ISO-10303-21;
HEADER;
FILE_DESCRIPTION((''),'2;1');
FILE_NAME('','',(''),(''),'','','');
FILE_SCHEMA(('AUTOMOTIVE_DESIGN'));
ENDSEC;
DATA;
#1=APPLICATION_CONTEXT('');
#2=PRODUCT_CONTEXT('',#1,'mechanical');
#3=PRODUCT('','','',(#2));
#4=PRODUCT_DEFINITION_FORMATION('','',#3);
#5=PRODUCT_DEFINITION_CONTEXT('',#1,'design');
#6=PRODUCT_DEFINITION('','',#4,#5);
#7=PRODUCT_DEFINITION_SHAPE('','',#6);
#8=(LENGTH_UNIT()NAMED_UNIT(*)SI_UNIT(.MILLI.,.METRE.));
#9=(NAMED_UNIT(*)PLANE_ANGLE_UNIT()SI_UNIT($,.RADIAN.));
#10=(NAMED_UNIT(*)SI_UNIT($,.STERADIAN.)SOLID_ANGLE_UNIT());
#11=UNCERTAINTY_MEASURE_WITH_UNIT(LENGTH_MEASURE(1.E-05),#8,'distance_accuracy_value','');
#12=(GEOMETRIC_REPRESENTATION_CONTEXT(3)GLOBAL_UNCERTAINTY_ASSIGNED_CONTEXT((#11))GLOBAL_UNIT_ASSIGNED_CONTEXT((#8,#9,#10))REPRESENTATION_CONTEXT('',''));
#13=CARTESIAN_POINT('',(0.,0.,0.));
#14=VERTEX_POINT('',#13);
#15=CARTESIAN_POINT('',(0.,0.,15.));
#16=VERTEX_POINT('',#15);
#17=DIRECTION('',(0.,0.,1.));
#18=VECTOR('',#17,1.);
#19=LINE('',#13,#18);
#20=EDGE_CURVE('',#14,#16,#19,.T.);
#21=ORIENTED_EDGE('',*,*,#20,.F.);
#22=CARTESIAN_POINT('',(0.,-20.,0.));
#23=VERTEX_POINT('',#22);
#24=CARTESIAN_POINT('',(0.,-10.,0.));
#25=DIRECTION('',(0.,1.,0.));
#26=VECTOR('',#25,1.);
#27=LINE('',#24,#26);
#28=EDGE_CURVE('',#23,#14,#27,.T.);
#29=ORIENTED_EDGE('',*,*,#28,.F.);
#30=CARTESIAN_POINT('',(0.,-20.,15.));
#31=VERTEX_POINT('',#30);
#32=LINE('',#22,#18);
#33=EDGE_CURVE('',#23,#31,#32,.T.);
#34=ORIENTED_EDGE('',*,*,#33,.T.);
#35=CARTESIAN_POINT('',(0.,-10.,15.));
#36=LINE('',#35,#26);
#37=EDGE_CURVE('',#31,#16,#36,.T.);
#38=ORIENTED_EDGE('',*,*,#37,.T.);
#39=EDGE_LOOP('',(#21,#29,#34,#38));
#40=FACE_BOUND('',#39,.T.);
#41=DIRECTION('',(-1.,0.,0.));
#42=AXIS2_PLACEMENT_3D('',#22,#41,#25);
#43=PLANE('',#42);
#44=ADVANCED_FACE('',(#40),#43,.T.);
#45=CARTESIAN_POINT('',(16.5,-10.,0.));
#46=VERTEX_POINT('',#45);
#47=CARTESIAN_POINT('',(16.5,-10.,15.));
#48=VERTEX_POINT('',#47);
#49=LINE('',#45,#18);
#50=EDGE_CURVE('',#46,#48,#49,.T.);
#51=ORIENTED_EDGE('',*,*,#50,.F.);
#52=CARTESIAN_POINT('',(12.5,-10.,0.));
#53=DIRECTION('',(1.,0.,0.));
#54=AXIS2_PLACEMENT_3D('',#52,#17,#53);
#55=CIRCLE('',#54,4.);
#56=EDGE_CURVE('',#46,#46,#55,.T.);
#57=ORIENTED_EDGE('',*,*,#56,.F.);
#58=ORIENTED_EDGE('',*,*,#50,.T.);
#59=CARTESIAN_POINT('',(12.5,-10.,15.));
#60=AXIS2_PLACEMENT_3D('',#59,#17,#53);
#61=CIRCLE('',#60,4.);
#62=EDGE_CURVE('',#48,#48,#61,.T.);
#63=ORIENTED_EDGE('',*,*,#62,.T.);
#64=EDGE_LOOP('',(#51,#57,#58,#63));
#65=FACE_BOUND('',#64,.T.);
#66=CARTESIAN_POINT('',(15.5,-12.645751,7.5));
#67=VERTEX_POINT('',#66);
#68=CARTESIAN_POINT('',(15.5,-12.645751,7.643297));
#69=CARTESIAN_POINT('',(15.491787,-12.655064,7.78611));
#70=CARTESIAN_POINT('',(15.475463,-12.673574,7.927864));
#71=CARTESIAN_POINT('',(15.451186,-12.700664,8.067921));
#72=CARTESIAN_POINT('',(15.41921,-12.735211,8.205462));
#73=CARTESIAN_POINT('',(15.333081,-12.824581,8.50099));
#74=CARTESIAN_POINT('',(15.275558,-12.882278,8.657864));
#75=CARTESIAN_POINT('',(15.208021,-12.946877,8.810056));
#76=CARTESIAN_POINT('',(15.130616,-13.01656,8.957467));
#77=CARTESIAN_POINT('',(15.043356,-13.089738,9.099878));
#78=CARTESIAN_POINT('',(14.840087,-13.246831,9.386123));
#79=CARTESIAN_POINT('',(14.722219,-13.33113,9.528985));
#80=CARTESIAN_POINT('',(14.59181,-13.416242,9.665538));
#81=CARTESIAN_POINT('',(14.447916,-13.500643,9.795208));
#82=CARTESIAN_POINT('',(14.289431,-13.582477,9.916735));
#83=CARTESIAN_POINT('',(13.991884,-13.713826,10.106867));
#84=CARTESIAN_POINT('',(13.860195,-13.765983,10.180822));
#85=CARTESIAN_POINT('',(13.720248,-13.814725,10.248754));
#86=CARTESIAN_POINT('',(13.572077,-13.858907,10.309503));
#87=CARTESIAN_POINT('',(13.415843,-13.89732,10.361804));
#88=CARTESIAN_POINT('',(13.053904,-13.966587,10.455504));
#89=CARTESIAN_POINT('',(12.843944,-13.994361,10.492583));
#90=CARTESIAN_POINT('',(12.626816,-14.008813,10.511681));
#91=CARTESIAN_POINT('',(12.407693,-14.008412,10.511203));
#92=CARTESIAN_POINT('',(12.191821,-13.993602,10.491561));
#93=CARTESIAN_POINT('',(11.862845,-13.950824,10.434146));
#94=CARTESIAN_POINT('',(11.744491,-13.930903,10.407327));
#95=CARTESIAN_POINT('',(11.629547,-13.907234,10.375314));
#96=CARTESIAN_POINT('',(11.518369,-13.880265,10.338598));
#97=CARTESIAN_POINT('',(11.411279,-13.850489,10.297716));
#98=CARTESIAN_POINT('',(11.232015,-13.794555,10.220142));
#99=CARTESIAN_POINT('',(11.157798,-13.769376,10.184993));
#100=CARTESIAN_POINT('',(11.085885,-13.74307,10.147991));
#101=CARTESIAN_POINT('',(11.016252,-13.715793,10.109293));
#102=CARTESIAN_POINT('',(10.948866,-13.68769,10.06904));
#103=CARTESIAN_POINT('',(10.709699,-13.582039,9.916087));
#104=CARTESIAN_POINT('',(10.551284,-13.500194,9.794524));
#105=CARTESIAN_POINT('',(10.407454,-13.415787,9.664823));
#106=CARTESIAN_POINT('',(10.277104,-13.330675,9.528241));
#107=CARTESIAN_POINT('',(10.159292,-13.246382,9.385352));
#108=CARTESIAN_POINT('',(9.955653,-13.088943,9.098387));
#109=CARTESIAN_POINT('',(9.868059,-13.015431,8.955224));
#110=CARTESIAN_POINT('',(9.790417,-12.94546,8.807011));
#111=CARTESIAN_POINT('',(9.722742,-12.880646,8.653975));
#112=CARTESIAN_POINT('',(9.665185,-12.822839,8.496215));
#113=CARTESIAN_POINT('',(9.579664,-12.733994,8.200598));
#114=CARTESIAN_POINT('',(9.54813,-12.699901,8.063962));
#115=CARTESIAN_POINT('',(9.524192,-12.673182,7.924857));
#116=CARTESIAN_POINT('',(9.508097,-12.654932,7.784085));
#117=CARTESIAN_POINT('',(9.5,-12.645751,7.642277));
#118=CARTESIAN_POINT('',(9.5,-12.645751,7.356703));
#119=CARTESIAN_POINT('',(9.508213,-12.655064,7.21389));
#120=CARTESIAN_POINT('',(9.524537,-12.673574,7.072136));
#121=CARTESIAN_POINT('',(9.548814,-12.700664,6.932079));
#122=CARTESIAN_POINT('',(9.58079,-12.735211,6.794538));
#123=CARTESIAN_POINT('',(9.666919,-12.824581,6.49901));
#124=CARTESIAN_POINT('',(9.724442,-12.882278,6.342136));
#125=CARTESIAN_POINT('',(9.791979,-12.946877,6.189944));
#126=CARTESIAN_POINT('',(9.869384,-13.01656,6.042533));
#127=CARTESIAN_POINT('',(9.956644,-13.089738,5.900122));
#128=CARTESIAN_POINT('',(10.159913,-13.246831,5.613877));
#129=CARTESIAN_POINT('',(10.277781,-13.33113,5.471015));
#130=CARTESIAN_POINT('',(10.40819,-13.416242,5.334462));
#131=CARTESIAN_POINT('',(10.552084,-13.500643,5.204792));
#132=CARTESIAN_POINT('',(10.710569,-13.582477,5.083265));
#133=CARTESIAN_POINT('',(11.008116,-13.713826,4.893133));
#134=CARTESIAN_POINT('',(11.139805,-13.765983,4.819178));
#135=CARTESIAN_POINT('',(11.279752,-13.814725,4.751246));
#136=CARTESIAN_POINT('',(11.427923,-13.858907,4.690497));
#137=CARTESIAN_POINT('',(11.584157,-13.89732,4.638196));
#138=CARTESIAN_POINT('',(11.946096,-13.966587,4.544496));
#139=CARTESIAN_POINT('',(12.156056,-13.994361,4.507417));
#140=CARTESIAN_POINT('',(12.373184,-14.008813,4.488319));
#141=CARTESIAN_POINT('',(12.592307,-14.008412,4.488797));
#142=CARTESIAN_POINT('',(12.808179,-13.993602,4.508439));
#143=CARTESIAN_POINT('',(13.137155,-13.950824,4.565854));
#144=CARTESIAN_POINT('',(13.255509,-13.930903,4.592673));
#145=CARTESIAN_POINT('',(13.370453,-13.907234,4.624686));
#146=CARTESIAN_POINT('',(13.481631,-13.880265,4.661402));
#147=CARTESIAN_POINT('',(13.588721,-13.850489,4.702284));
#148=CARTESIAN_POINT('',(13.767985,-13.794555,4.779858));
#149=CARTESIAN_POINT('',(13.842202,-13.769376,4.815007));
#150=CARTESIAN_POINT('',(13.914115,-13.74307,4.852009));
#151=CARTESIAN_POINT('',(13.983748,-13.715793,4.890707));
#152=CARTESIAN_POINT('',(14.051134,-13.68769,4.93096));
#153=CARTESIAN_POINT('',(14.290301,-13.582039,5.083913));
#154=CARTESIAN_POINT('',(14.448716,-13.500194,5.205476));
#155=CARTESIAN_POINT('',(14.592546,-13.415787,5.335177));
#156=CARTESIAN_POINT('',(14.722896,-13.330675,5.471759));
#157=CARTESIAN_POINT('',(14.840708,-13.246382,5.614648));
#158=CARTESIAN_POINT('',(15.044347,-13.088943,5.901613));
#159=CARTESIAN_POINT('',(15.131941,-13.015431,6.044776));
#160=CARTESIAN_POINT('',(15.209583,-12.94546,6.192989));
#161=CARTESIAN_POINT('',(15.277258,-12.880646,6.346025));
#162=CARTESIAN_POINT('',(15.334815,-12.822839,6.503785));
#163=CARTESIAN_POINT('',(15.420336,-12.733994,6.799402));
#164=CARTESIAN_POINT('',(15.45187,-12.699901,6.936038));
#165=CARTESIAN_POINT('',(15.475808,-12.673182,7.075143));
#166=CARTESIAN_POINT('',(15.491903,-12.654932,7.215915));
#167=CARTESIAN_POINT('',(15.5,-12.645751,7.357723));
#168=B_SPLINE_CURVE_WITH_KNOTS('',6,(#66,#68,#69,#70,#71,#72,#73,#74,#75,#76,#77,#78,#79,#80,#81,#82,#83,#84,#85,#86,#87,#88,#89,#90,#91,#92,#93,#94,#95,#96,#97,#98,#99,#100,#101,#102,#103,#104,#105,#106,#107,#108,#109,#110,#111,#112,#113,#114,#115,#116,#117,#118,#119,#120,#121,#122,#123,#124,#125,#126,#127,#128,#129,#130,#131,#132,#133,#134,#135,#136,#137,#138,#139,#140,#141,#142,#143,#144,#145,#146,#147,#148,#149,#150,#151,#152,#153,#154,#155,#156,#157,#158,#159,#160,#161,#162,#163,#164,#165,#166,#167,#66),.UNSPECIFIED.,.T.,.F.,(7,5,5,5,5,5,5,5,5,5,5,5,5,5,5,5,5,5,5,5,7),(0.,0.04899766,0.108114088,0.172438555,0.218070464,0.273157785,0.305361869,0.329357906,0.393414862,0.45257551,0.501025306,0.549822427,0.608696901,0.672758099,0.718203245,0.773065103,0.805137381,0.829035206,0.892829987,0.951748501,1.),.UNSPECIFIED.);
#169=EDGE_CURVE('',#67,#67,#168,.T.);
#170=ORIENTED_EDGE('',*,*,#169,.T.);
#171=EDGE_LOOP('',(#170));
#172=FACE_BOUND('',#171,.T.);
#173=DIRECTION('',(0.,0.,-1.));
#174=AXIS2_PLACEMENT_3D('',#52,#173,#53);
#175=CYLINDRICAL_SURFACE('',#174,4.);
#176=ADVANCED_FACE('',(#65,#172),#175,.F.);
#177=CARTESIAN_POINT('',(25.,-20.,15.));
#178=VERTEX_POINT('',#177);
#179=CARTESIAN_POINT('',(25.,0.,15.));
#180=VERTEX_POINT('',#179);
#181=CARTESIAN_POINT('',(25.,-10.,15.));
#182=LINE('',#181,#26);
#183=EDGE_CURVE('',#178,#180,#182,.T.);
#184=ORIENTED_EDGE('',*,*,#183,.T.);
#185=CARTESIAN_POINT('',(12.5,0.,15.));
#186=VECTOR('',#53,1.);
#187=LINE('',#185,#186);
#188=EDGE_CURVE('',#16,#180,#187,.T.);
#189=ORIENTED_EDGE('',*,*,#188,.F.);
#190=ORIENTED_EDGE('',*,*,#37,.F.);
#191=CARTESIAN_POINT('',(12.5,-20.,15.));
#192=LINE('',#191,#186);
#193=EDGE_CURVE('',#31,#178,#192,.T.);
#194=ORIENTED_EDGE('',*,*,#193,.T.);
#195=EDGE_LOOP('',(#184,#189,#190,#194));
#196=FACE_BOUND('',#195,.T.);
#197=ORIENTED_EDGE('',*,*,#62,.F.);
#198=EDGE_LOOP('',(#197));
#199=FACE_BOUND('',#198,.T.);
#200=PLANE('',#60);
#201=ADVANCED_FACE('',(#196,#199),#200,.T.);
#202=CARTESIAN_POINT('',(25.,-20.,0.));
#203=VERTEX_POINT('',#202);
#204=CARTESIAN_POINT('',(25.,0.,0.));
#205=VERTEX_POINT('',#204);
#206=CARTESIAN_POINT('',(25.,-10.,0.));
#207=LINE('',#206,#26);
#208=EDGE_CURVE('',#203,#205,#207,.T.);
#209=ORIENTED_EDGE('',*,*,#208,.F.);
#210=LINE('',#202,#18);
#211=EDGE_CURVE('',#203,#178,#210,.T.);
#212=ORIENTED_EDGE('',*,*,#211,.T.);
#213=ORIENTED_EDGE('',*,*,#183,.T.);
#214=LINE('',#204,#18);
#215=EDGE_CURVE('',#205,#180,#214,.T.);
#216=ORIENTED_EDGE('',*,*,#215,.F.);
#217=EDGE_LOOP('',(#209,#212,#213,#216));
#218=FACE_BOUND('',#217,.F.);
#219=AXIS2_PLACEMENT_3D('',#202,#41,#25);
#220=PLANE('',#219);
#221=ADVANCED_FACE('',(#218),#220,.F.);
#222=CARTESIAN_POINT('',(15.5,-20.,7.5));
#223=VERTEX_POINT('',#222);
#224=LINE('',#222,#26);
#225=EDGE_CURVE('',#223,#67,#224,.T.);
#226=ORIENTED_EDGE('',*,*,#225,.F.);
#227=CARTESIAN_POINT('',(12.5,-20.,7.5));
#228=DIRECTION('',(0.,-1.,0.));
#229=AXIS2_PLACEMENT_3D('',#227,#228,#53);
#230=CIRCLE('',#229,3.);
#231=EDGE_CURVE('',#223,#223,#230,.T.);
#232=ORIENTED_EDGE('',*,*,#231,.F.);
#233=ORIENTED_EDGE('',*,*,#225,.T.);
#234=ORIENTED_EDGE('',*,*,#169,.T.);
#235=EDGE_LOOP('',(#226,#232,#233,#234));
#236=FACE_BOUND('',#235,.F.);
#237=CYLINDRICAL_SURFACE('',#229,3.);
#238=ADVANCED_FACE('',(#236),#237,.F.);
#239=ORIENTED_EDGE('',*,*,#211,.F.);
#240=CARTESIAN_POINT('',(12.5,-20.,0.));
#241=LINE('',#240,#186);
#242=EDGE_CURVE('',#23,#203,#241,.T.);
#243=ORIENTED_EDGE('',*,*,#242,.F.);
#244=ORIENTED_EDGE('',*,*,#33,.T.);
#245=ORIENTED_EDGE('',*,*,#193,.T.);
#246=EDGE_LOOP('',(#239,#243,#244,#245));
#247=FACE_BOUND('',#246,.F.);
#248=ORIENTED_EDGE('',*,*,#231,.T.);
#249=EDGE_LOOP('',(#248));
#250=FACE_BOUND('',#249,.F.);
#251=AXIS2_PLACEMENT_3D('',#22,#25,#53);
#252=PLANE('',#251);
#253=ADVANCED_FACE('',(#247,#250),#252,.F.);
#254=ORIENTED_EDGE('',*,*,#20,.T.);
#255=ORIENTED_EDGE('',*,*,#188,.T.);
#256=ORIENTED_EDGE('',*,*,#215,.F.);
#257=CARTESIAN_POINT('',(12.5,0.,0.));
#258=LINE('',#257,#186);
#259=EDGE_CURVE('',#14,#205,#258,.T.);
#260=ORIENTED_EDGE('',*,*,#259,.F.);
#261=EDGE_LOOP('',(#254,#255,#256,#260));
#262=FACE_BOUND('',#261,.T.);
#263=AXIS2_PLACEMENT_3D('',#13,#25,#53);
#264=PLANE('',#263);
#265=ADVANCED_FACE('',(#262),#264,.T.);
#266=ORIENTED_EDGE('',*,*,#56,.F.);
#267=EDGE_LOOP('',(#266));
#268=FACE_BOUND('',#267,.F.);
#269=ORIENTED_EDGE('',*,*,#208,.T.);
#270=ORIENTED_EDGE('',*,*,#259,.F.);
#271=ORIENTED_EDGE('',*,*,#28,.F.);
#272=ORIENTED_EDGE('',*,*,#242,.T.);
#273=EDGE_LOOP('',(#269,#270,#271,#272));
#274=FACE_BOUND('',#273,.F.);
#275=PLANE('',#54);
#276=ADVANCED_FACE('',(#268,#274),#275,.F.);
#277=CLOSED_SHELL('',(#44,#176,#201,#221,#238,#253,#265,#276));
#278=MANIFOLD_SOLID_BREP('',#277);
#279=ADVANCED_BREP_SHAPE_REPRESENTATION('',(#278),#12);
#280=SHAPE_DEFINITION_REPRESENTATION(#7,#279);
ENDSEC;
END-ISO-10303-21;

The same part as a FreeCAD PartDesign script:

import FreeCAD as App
import Part
import Sketcher

V = App.Vector

doc = App.newDocument("Part")
params = doc.addObject("Spreadsheet::Sheet", "Params")
for row, (alias, value) in enumerate([
    ("sketch1_diameter", "8 mm"),
    ("sketch1_width", "25 mm"),
    ("sketch1_height", "20 mm"),
    ("pad1_length", "15 mm"),
    ("sketch2_diameter", "6 mm"),
    ("pocket1_length", "10 mm"),
], start=1):
    params.set(f"A{row}", alias)
    params.set(f"B{row}", "=" + value)
    params.setAlias(f"B{row}", alias)

body = doc.addObject("PartDesign::Body", "Body")

sketch1 = body.newObject("Sketcher::SketchObject", "Sketch")
sketch1.AttachmentSupport = (doc.getObject("XY_Plane"), [""])
sketch1.MapMode = "FlatFace"
sketch1.addGeometry([
    Part.LineSegment(V(0, 0, 0), V(0, -20, 0)),
    Part.LineSegment(V(0, -20, 0), V(25, -20, 0)),
    Part.LineSegment(V(25, -20, 0), V(25, 0, 0)),
    Part.LineSegment(V(25, 0, 0), V(0, 0, 0)),
    Part.Circle(V(12.5, -10, 0), V(0, 0, 1), 4),
], False)
sketch1.addConstraint([
    Sketcher.Constraint("Coincident", 0, 2, 1, 1),
    Sketcher.Constraint("Coincident", 1, 2, 2, 1),
    Sketcher.Constraint("Coincident", 2, 2, 3, 1),
    Sketcher.Constraint("Coincident", 3, 2, 0, 1),
    Sketcher.Constraint("Vertical", 0),
    Sketcher.Constraint("Horizontal", 1),
    Sketcher.Constraint("Vertical", 2),
    Sketcher.Constraint("Horizontal", 3),
    Sketcher.Constraint("Coincident", 3, 2, -1, 1),
    Sketcher.Constraint("Diameter", 4, 8.0),
    Sketcher.Constraint("DistanceX", 1, 1, 1, 2, 25.0),
    Sketcher.Constraint("DistanceY", 0, 2, 0, 1, 20.0),
    Sketcher.Constraint("DistanceY", 4, 3, -1, 1, 10.0),
    Sketcher.Constraint("DistanceX", -1, 1, 4, 3, 12.5),
])
sketch1.setExpression("Constraints[9]", "Params.sketch1_diameter")
sketch1.setExpression("Constraints[10]", "Params.sketch1_width")
sketch1.setExpression("Constraints[11]", "Params.sketch1_height")
pad1 = body.newObject("PartDesign::Pad", "Pad")
pad1.Profile = sketch1
pad1.setExpression("Length", "Params.pad1_length")

sketch2 = body.newObject("Sketcher::SketchObject", "Sketch001")
sketch2.AttachmentSupport = (doc.getObject("XZ_Plane"), [""])
sketch2.MapMode = "FlatFace"
sketch2.AttachmentOffset = App.Placement(V(0, 0, 20), App.Rotation())
sketch2.addGeometry(Part.Circle(V(12.5, 7.5, 0), V(0, 0, 1), 3), False)
sketch2.addConstraint([
    Sketcher.Constraint("Diameter", 0, 6.0),
    Sketcher.Constraint("DistanceX", -1, 1, 0, 3, 12.5),
    Sketcher.Constraint("DistanceY", -1, 1, 0, 3, 7.5),
])
sketch2.setExpression("Constraints[0]", "Params.sketch2_diameter")
pocket1 = body.newObject("PartDesign::Pocket", "Pocket")
pocket1.Profile = sketch2
pocket1.setExpression("Length", "Params.pocket1_length")

doc.recompute()
